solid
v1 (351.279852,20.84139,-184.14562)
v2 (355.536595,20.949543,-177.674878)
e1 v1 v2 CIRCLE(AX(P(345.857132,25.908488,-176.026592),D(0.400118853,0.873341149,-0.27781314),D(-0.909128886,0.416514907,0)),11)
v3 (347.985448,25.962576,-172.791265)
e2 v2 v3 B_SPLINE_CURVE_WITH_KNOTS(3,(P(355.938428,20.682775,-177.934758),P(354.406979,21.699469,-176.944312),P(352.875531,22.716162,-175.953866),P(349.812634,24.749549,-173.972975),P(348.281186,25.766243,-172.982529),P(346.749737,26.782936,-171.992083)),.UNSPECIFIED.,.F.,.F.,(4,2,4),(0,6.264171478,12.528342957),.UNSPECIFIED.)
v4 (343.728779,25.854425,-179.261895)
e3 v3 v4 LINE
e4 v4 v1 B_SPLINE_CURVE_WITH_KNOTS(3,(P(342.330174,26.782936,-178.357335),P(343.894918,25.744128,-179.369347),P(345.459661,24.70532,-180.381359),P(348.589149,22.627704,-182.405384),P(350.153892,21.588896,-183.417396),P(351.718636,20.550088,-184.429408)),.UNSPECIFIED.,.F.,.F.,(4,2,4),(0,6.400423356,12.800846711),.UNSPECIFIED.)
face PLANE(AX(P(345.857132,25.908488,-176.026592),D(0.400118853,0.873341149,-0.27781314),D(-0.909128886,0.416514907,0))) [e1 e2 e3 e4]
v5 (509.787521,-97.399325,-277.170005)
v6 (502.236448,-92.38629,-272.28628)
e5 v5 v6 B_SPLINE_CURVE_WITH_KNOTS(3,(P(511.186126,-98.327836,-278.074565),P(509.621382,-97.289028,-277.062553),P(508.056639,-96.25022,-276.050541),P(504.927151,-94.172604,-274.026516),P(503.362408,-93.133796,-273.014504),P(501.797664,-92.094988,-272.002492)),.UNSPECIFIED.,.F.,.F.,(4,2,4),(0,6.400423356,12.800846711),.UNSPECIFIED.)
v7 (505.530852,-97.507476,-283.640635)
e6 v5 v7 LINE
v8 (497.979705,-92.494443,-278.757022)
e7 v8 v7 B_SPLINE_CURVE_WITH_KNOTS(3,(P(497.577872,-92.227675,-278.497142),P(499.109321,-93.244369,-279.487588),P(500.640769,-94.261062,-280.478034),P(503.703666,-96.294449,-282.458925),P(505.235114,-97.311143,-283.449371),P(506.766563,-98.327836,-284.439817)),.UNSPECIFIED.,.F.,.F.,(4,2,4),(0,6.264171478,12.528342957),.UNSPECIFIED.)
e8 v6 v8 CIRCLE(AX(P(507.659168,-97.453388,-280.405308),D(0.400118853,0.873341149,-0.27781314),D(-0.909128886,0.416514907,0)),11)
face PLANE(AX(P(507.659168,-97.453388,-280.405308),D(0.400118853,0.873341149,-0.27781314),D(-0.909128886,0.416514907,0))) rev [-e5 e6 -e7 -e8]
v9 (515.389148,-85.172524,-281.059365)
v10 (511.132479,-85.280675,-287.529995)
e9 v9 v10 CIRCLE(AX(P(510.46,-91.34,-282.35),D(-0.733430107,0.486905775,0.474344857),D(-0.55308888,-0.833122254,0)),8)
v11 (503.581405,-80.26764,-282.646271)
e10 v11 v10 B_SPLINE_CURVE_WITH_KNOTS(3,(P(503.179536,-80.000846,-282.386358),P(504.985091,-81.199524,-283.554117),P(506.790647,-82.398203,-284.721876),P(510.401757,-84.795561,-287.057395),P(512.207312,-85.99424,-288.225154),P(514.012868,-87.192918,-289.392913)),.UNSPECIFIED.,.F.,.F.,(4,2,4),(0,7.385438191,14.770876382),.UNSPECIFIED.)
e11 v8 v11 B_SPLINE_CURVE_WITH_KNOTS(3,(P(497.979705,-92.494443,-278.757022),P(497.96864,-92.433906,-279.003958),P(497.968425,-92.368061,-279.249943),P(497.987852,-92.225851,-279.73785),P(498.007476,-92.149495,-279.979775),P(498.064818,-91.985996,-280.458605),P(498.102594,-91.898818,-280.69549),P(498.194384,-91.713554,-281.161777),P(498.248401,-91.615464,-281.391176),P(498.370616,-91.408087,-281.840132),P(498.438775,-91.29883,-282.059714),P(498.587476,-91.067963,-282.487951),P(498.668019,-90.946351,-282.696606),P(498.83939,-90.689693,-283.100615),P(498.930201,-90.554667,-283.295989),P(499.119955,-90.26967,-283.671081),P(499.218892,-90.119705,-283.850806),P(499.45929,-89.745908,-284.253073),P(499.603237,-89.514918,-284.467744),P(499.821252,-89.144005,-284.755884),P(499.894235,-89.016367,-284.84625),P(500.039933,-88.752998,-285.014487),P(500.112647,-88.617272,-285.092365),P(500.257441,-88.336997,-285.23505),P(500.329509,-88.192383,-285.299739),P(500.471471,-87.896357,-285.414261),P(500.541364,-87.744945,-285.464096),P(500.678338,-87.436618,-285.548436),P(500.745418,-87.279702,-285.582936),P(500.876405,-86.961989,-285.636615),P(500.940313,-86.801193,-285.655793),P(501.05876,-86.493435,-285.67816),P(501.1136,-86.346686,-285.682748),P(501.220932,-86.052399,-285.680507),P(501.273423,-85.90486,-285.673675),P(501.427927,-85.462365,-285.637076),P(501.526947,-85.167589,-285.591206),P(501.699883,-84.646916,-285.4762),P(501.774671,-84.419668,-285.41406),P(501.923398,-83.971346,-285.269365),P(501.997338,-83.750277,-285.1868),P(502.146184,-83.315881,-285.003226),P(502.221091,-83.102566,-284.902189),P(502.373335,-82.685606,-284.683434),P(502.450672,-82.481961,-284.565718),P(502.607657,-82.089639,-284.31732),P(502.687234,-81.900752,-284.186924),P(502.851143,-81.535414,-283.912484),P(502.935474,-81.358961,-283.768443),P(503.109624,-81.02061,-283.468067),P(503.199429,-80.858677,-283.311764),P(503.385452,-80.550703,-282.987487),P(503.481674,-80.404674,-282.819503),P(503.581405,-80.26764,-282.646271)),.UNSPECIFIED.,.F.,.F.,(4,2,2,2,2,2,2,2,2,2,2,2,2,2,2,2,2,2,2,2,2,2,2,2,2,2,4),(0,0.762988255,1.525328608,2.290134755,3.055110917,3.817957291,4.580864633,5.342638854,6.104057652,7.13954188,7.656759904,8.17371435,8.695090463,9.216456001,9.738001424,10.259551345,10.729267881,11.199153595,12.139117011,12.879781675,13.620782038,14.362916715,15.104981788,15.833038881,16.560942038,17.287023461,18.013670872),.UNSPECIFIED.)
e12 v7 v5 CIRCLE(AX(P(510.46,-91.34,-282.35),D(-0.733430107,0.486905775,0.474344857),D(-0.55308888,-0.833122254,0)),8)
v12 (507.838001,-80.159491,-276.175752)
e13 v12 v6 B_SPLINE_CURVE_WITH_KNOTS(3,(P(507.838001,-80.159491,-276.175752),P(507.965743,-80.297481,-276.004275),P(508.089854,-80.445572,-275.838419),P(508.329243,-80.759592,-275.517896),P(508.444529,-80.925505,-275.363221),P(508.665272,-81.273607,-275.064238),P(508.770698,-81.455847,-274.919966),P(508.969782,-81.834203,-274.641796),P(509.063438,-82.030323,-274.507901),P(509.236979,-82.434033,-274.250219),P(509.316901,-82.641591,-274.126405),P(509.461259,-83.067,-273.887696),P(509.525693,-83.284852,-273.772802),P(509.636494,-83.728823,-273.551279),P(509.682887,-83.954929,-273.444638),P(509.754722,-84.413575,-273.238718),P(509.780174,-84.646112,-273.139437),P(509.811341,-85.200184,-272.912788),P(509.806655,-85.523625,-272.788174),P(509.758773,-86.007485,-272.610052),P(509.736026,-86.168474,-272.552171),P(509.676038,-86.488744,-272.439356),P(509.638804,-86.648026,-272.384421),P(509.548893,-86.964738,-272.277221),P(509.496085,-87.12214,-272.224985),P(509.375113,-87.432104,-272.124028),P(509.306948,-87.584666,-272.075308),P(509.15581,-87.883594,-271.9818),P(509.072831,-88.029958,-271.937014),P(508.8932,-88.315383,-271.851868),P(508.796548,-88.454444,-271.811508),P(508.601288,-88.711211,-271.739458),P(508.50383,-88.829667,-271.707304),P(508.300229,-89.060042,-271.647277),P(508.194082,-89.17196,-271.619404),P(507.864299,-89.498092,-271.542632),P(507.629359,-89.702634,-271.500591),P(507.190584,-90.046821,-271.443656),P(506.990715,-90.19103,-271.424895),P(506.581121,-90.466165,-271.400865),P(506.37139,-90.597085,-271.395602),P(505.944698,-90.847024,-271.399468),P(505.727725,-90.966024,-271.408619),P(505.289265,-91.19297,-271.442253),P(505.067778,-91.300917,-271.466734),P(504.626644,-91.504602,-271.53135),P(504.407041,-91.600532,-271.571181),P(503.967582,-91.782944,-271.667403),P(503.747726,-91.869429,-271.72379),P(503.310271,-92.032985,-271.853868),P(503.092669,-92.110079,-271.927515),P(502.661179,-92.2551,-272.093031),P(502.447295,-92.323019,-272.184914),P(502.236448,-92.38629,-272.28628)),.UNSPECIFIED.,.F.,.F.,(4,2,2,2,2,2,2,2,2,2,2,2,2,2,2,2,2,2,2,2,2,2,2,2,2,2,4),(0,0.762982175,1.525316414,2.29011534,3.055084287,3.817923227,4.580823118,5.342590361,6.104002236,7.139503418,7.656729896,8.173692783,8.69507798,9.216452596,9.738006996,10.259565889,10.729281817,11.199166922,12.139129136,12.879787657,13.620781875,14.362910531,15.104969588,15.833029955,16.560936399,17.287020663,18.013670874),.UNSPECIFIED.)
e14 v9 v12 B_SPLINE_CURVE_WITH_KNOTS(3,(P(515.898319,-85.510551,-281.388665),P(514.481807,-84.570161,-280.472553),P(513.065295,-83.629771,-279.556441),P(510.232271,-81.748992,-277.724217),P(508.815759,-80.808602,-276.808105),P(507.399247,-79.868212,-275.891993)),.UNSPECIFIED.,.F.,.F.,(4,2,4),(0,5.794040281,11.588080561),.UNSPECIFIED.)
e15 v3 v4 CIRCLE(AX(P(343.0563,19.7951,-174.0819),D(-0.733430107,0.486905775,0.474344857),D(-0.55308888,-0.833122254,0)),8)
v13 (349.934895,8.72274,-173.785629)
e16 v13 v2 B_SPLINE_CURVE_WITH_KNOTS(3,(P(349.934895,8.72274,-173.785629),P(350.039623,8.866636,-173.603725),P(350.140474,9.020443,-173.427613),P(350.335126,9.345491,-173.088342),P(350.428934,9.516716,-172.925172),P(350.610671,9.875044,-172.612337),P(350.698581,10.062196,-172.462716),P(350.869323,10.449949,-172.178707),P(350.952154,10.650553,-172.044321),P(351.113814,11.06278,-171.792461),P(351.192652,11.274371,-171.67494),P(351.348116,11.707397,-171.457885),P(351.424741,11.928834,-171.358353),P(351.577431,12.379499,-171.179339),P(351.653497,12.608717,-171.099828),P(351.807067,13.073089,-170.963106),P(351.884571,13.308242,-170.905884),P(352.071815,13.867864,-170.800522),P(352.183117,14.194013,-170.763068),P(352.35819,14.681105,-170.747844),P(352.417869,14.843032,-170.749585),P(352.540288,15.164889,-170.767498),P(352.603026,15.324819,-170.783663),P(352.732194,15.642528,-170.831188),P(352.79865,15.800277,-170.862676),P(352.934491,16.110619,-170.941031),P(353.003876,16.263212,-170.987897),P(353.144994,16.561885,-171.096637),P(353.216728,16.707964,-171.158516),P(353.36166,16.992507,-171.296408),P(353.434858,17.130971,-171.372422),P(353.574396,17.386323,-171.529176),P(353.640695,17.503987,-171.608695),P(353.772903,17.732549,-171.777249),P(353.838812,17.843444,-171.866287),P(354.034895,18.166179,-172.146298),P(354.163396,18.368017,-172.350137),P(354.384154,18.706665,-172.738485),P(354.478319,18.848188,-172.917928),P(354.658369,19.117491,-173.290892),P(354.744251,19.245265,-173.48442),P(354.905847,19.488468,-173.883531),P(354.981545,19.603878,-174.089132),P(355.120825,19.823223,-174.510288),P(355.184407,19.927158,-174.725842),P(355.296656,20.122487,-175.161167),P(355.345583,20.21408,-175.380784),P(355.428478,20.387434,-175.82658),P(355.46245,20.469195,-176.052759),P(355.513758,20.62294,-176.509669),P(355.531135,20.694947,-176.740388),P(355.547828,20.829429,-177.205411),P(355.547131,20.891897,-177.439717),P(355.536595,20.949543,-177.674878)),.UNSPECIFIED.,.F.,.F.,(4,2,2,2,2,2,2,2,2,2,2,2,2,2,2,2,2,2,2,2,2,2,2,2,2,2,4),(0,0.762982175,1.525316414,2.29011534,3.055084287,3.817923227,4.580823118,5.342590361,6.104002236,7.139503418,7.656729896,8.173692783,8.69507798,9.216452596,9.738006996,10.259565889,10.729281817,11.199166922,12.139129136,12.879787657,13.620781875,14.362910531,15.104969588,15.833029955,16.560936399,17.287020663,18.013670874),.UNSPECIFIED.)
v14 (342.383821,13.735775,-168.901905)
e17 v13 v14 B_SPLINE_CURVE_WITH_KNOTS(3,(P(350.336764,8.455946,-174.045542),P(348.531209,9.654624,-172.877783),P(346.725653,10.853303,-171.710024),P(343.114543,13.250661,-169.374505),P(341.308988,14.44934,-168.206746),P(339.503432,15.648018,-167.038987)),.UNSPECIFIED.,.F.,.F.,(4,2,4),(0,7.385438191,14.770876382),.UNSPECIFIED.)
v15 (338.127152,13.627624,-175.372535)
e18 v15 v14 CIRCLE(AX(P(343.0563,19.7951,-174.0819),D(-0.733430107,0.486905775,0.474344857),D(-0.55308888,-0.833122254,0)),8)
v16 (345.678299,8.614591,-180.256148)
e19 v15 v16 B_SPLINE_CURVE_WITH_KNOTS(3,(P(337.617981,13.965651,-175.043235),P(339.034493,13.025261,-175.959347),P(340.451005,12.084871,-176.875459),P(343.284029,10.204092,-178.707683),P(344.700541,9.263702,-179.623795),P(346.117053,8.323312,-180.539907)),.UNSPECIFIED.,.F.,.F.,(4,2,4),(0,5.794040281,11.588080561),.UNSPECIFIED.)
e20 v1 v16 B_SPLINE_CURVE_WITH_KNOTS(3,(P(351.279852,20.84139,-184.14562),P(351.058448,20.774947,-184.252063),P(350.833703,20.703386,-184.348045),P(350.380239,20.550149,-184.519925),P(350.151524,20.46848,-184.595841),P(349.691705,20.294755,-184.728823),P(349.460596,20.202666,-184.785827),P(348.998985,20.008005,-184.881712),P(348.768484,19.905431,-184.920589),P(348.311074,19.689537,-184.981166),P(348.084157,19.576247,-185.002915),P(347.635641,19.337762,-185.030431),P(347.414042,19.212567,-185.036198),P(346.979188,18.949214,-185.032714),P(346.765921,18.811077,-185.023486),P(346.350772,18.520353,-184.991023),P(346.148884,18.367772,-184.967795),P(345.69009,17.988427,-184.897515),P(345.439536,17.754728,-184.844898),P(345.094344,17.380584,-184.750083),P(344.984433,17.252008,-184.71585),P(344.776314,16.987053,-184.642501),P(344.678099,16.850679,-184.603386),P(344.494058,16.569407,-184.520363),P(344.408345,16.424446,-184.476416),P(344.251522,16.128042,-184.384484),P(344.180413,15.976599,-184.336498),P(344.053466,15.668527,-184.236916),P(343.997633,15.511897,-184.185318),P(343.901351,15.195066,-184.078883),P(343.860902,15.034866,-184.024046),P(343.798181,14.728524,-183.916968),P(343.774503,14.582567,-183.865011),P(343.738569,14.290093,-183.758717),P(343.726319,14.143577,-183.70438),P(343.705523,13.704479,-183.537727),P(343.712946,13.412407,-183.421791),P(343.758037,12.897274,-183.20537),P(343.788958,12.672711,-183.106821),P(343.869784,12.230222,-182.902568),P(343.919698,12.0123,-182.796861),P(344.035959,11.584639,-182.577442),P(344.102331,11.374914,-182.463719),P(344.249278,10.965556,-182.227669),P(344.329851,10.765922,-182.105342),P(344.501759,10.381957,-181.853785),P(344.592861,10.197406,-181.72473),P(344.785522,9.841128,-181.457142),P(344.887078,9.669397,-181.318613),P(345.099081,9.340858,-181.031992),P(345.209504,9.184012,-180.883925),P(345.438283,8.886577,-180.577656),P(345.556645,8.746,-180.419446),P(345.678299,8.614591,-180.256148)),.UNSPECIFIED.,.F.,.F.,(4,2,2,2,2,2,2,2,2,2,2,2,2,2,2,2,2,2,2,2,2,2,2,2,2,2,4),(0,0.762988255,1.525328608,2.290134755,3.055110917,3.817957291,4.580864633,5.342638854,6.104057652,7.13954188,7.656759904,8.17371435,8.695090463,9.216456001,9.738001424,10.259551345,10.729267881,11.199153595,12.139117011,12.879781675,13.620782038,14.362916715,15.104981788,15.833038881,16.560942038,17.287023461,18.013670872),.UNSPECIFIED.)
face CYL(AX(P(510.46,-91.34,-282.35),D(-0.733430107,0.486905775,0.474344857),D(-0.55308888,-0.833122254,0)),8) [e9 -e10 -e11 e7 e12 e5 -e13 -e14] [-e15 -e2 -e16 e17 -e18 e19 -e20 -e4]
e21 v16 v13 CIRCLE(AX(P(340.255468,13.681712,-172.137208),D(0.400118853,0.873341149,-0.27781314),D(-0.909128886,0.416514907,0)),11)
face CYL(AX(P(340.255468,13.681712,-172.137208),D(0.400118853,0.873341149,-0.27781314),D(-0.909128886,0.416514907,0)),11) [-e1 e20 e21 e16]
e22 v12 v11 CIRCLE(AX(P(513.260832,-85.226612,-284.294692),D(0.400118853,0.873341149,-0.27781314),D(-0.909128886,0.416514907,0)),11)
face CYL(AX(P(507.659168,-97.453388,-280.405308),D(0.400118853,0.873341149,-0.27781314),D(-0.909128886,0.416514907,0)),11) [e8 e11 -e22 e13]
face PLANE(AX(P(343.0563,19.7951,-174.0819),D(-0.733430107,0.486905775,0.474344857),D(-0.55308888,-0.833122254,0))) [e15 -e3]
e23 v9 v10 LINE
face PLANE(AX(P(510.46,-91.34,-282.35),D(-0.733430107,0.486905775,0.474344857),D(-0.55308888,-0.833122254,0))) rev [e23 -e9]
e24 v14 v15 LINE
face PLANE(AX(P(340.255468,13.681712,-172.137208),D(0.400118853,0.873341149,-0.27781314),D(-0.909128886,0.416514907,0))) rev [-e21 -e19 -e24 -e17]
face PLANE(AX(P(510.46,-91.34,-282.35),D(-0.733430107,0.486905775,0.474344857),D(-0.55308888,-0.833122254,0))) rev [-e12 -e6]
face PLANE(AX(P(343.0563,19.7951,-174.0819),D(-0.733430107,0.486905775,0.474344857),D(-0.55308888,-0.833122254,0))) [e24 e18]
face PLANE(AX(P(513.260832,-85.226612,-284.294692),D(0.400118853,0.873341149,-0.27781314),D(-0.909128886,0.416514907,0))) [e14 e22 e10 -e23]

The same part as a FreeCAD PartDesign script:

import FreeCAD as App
import Part
import Sketcher
Q = App.Units.Quantity

doc = App.newDocument("Part")
body = doc.addObject("PartDesign::Body", "Body")

# Sketch on an angled plane
sketch1 = doc.addObject("Sketcher::SketchObject", "Sketch")
body.addObject(sketch1)
sketch1.Placement = App.Placement(App.Vector(510.46, -91.34, -282.35), App.Rotation(App.Vector(-0.55308888, -0.833122254, 0), App.Vector(0.395187256, -0.262354866, 0.880339114), App.Vector(-0.733430107, 0.486905775, 0.474344857), "ZXY"))
sketch1.addGeometry(Part.Circle(App.Vector(0, 0, 0), App.Vector(0, 0, 1), 8), False)
sketch1.addConstraint(Sketcher.Constraint("Coincident", 0, 3, -1, 1))
sketch1.addConstraint(Sketcher.Constraint("Diameter", 0, Q("16 mm")))

# Sketch on an angled plane
sketch2 = doc.addObject("Sketcher::SketchObject", "Sketch001")
body.addObject(sketch2)
sketch2.Placement = App.Placement(App.Vector(114.064827, 171.816771, 0), App.Rotation(App.Vector(-0.833122254, 0.55308888, 0), App.Vector(0, 0, 0.999999999), App.Vector(0.55308888, 0.833122254, 0), "ZXY"))
sketch2.addGeometry(Part.LineSegment(App.Vector(-476, -282, 0), App.Vector(-275, -174, 0)), False)
sketch2.addConstraint(Sketcher.Constraint("DistanceY", 0, 1, -1, 1, Q("282.35 mm")))
sketch2.addConstraint(Sketcher.Constraint("DistanceY", 0, 2, -1, 1, Q("174.0819 mm")))
sketch2.addConstraint(Sketcher.Constraint("Distance", 0, Q("228.247652 mm")))
sketch2.addConstraint(Sketcher.Constraint("DistanceX", 0, 2, -1, 1, Q("274.859388 mm")))
doc.recompute()

additivepipe = doc.addObject("PartDesign::AdditivePipe", "AdditivePipe")
body.addObject(additivepipe)
additivepipe.Profile = sketch1
additivepipe.Spine = (sketch2, ["Edge1"])

# Sketch on an angled plane
sketch3 = doc.addObject("Sketcher::SketchObject", "Sketch002")
body.addObject(sketch3)
sketch3.Placement = App.Placement(App.Vector(507.659168, -97.453388, -280.405308), App.Rotation(App.Vector(0.909128886, -0.416514907, 0), App.Vector(-0.115713314, -0.25256795, -0.960635133), App.Vector(0.400118853, 0.873341149, -0.27781314), "ZXY"))
sketch3.addGeometry(Part.Circle(App.Vector(0, 0, 0), App.Vector(0, 0, 1), 11), False)
sketch3.addConstraint(Sketcher.Constraint("Coincident", 0, 3, -1, 1))
sketch3.addConstraint(Sketcher.Constraint("Diameter", 0, Q("22 mm")))

# Sketch on an angled plane
sketch4 = doc.addObject("Sketcher::SketchObject", "Sketch003")
body.addObject(sketch4)
sketch4.Placement = App.Placement(App.Vector(456.490345, -209.1398, 0), App.Rotation(App.Vector(0.416514907, 0.909128886, 0), App.Vector(0, 0, 0.999999999), App.Vector(0.909128886, -0.416514907, 0), "ZXY"))
sketch4.addGeometry(Part.LineSegment(App.Vector(123, -280, 0), App.Vector(136, -284, 0)), False)
sketch4.addConstraint(Sketcher.Constraint("Distance", 0, Q("14 mm")))
sketch4.addConstraint(Sketcher.Constraint("DistanceX", -1, 1, 0, 1, Q("122.849921 mm")))
sketch4.addConstraint(Sketcher.Constraint("DistanceY", 0, 2, -1, 1, Q("284.294691 mm")))
sketch4.addConstraint(Sketcher.Constraint("DistanceX", 0, 1, 0, 2, Q("13.448892 mm")))
doc.recompute()

additivepipe2 = doc.addObject("PartDesign::AdditivePipe", "AdditivePipe001")
body.addObject(additivepipe2)
additivepipe2.Profile = sketch3
additivepipe2.Spine = (sketch4, ["Edge1"])

# Sketch on an angled plane
sketch5 = doc.addObject("Sketcher::SketchObject", "Sketch004")
body.addObject(sketch5)
sketch5.Placement = App.Placement(App.Vector(340.255468, 13.681712, -172.137208), App.Rotation(App.Vector(0.909128886, -0.416514907, 0), App.Vector(-0.115713314, -0.25256795, -0.960635133), App.Vector(0.400118853, 0.873341149, -0.27781314), "ZXY"))
sketch5.addGeometry(Part.Circle(App.Vector(0, 0, 0), App.Vector(0, 0, 1), 11), False)
sketch5.addConstraint(Sketcher.Constraint("Coincident", 0, 3, -1, 1))
sketch5.addConstraint(Sketcher.Constraint("Diameter", 0, Q("22 mm")))

# Sketch on an angled plane
sketch6 = doc.addObject("Sketcher::SketchObject", "Sketch005")
body.addObject(sketch6)
sketch6.Placement = App.Placement(App.Vector(276.045566, -126.469519, 0), App.Rotation(App.Vector(0.416514907, 0.909128886, 0), App.Vector(0, 0, 0.999999999), App.Vector(0.909128886, -0.416514907, 0), "ZXY"))
sketch6.addGeometry(Part.LineSegment(App.Vector(154, -172, 0), App.Vector(168, -176, 0)), False)
sketch6.addConstraint(Sketcher.Constraint("Distance", 0, Q("14 mm")))
sketch6.addConstraint(Sketcher.Constraint("DistanceY", 0, 2, -1, 1, Q("176.026592 mm")))
sketch6.addConstraint(Sketcher.Constraint("DistanceX", 0, 1, 0, 2, Q("13.448892 mm")))
sketch6.addConstraint(Sketcher.Constraint("DistanceX", -1, 1, 0, 1, Q("154.159914 mm")))
doc.recompute()

additivepipe3 = doc.addObject("PartDesign::AdditivePipe", "AdditivePipe002")
body.addObject(additivepipe3)
additivepipe3.Profile = sketch5
additivepipe3.Spine = (sketch6, ["Edge1"])

doc.recompute()
